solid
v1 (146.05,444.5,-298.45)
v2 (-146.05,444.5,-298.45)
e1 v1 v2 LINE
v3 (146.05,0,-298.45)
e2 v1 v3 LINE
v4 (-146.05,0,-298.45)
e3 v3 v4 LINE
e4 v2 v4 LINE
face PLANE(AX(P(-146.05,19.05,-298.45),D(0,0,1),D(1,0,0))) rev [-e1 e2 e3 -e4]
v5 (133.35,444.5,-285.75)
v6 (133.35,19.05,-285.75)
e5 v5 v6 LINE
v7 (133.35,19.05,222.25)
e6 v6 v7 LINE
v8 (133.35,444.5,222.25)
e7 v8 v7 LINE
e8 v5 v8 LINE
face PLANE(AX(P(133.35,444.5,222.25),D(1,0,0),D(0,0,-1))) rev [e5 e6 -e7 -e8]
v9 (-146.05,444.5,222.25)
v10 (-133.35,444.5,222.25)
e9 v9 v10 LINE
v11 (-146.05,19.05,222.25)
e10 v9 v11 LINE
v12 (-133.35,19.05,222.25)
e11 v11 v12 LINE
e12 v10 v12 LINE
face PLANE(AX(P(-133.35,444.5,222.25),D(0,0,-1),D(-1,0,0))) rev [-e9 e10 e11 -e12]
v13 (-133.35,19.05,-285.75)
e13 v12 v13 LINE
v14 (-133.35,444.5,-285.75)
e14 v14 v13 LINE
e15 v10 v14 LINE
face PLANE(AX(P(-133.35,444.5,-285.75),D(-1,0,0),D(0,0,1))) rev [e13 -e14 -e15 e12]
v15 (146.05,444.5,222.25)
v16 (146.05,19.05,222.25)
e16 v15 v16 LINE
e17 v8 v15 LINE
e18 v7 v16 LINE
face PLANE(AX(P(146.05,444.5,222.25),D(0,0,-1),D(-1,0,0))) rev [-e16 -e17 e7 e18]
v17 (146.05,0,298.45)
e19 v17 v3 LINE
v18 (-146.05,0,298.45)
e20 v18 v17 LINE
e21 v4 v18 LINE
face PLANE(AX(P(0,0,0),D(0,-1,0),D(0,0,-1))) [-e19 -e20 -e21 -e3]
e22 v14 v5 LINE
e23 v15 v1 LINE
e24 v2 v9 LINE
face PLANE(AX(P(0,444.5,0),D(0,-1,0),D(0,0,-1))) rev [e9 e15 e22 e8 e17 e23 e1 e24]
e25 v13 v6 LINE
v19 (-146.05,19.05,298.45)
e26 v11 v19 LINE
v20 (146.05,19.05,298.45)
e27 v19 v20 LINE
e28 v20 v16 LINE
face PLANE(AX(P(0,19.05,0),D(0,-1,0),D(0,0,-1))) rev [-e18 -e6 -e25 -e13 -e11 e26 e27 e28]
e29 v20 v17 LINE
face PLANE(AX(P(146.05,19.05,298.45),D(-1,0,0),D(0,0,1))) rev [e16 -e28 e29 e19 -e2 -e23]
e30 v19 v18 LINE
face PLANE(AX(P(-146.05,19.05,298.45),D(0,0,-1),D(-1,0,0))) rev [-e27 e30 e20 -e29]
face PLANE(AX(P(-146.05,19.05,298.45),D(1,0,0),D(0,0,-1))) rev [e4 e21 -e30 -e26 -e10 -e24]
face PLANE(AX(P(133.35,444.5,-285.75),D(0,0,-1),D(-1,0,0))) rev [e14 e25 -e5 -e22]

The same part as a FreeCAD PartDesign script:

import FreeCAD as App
import Part
import Sketcher
Q = App.Units.Quantity

doc = App.newDocument("Part")
body = doc.addObject("PartDesign::Body", "Body")

sketch1 = doc.addObject("Sketcher::SketchObject", "Sketch")
body.addObject(sketch1)
sketch1.AttachmentSupport = (doc.XZ_Plane, [""])
sketch1.MapMode = "FlatFace"
sketch1.addGeometry(Part.LineSegment(App.Vector(-146, -298, 0), App.Vector(-146, 298, 0)), False)
sketch1.addGeometry(Part.LineSegment(App.Vector(-146, 298, 0), App.Vector(146, 298, 0)), False)
sketch1.addGeometry(Part.LineSegment(App.Vector(146, 298, 0), App.Vector(146, -298, 0)), False)
sketch1.addGeometry(Part.LineSegment(App.Vector(146, -298, 0), App.Vector(-146, -298, 0)), False)
sketch1.addConstraint(Sketcher.Constraint("Coincident", 0, 2, 1, 1))
sketch1.addConstraint(Sketcher.Constraint("Coincident", 1, 2, 2, 1))
sketch1.addConstraint(Sketcher.Constraint("Coincident", 2, 2, 3, 1))
sketch1.addConstraint(Sketcher.Constraint("Coincident", 3, 2, 0, 1))
sketch1.addConstraint(Sketcher.Constraint("Vertical", 0))
sketch1.addConstraint(Sketcher.Constraint("Horizontal", 1))
sketch1.addConstraint(Sketcher.Constraint("Vertical", 2))
sketch1.addConstraint(Sketcher.Constraint("Horizontal", 3))
sketch1.addConstraint(Sketcher.Constraint("Symmetric", 0, 2, 2, 2, -1, 1))
sketch1.addConstraint(Sketcher.Constraint("DistanceX", 1, 1, 1, 2, Q("11.5 in")))
sketch1.addConstraint(Sketcher.Constraint("DistanceY", 0, 1, 0, 2, Q("23.5 in")))
pad1 = doc.addObject("PartDesign::Pad", "Pad")
body.addObject(pad1)
pad1.Profile = sketch1
pad1.Length = Q("0.75 in")
pad1.Reversed = True

sketch2 = doc.addObject("Sketcher::SketchObject", "Sketch001")
body.addObject(sketch2)
sketch2.AttachmentSupport = (doc.XZ_Plane, [""])
sketch2.MapMode = "FlatFace"
sketch2.AttachmentOffset = App.Placement(App.Vector(0, 0, -0.75 * 25.4), App.Rotation())
sketch2.addGeometry(Part.LineSegment(App.Vector(-146, -298, 0), App.Vector(-146, 222, 0)), False)
sketch2.addGeometry(Part.LineSegment(App.Vector(-146, 222, 0), App.Vector(-133, 222, 0)), False)
sketch2.addGeometry(Part.LineSegment(App.Vector(-133, 222, 0), App.Vector(-133, -286, 0)), False)
sketch2.addGeometry(Part.LineSegment(App.Vector(-133, -286, 0), App.Vector(133, -286, 0)), False)
sketch2.addGeometry(Part.LineSegment(App.Vector(133, -286, 0), App.Vector(133, 222, 0)), False)
sketch2.addGeometry(Part.LineSegment(App.Vector(133, 222, 0), App.Vector(146, 222, 0)), False)
sketch2.addGeometry(Part.LineSegment(App.Vector(146, 222, 0), App.Vector(146, -298, 0)), False)
sketch2.addGeometry(Part.LineSegment(App.Vector(146, -298, 0), App.Vector(-146, -298, 0)), False)
sketch2.addConstraint(Sketcher.Constraint("Coincident", 0, 2, 1, 1))
sketch2.addConstraint(Sketcher.Constraint("Coincident", 1, 2, 2, 1))
sketch2.addConstraint(Sketcher.Constraint("Coincident", 2, 2, 3, 1))
sketch2.addConstraint(Sketcher.Constraint("Coincident", 3, 2, 4, 1))
sketch2.addConstraint(Sketcher.Constraint("Coincident", 4, 2, 5, 1))
sketch2.addConstraint(Sketcher.Constraint("Coincident", 5, 2, 6, 1))
sketch2.addConstraint(Sketcher.Constraint("Coincident", 6, 2, 7, 1))
sketch2.addConstraint(Sketcher.Constraint("Coincident", 7, 2, 0, 1))
sketch2.addConstraint(Sketcher.Constraint("Vertical", 0))
sketch2.addConstraint(Sketcher.Constraint("Horizontal", 1))
sketch2.addConstraint(Sketcher.Constraint("Vertical", 2))
sketch2.addConstraint(Sketcher.Constraint("Horizontal", 3))
sketch2.addConstraint(Sketcher.Constraint("Vertical", 4))
sketch2.addConstraint(Sketcher.Constraint("Horizontal", 5))
sketch2.addConstraint(Sketcher.Constraint("Vertical", 6))
sketch2.addConstraint(Sketcher.Constraint("Horizontal", 7))
sketch2.addConstraint(Sketcher.Constraint("Symmetric", 1, 2, 4, 2, -2))
sketch2.addConstraint(Sketcher.Constraint("Equal", 1, 5))
sketch2.addConstraint(Sketcher.Constraint("DistanceY", 2, 2, 2, 1, Q("20 in")))
sketch2.addConstraint(Sketcher.Constraint("DistanceX", 1, 1, 1, 2, Q("0.5 in")))
sketch2.addConstraint(Sketcher.Constraint("DistanceX", 3, 1, 3, 2, Q("10.5 in")))
sketch2.addConstraint(Sketcher.Constraint("DistanceY", 0, 1, 0, 2, Q("20.5 in")))
sketch2.addConstraint(Sketcher.Constraint("DistanceY", -1, 1, 0, 2, Q("8.75 in")))
pad2 = doc.addObject("PartDesign::Pad", "Pad001")
body.addObject(pad2)
pad2.Profile = sketch2
pad2.Length = Q("16.75 in")
pad2.Reversed = True

doc.recompute()
